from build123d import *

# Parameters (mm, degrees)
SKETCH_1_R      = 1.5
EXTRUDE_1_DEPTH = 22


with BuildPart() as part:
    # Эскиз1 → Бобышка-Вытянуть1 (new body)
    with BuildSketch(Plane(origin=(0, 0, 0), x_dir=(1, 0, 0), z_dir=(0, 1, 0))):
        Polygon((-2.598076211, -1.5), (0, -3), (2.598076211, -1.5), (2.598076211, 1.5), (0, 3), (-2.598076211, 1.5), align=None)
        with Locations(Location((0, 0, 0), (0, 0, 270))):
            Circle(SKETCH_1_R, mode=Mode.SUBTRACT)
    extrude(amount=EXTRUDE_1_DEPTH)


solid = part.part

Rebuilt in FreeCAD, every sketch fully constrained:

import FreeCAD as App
import Part
import Sketcher
from FreeCAD import Vector
Q = App.Units.Quantity


def add_polygon(sketch, points):
    """Adds a closed chain of lines whose ends are joined by coincident constraints."""
    first, n = sketch.GeometryCount, len(points)
    for a, b in zip(points, points[1:] + points[:1]):
        sketch.addGeometry(Part.LineSegment(App.Vector(*a, 0), App.Vector(*b, 0)), False)
    for i in range(n):
        sketch.addConstraint(Sketcher.Constraint("Coincident", first + i, 2, first + (i + 1) % n, 1))

doc = App.newDocument("Part")
params = doc.addObject("Spreadsheet::Sheet", "Params")
for row, (alias, value) in enumerate([
    ("sketch1_diameter", "3 mm"),
    ("sketch1_height", "3 mm"),
    ("sketch1_length", "3 mm"),
    ("pad1_length", "22 mm"),
], start=1):
    params.set(f"A{row}", alias)
    params.set(f"B{row}", "=" + value)
    params.setAlias(f"B{row}", alias)

body = doc.addObject("PartDesign::Body", "Body")

# Sketch on XZ plane
sketch1 = body.newObject("Sketcher::SketchObject", "Sketch")
sketch1.AttachmentSupport = (doc.getObject("XZ_Plane"), [""])
sketch1.MapMode = "FlatFace"
add_polygon(sketch1, [(-2.598076, 1.5), (0, 3), (2.598076, 1.5), (2.598076, -1.5), (0, -3), (-2.598076, -1.5)])  # lines 0-5
sketch1.addGeometry(Part.Circle(Vector(0, 0, 0), Vector(0, 0, 1), 1.5), False)  # 6
sketch1.addConstraint(Sketcher.Constraint("Vertical", 2))
sketch1.addConstraint(Sketcher.Constraint("Vertical", 5))
sketch1.addConstraint(Sketcher.Constraint("Coincident", 6, 3, -1, 1))
sketch1.addConstraint(Sketcher.Constraint("Symmetric", 0, 2, 3, 2, -1, 1))
sketch1.addConstraint(Sketcher.Constraint("Symmetric", 1, 2, 4, 2, -1, 1))
sketch1.addConstraint(Sketcher.Constraint("PointOnObject", 0, 2, -2))
sketch1.addConstraint(Sketcher.Constraint("Parallel", 0, 3))
sketch1.addConstraint(Sketcher.Constraint("Horizontal", 2, 2, 4, 2))
sketch1.addConstraint(Sketcher.Constraint("Diameter", 6, 3.0))
sketch1.addConstraint(Sketcher.Constraint("DistanceY", 2, 2, 2, 1, 3.0))
sketch1.addConstraint(Sketcher.Constraint("Angle", 0, Q("30 deg")))
sketch1.addConstraint(Sketcher.Constraint("Distance", 0, 3.0))
sketch1.setExpression("Constraints[14]", "Params.sketch1_diameter")
sketch1.setExpression("Constraints[15]", "Params.sketch1_height")
sketch1.setExpression("Constraints[17]", "Params.sketch1_length")
pad1 = body.newObject("PartDesign::Pad", "Pad")
pad1.Profile = sketch1
pad1.setExpression("Length", "Params.pad1_length")
pad1.Reversed = True

doc.recompute()
